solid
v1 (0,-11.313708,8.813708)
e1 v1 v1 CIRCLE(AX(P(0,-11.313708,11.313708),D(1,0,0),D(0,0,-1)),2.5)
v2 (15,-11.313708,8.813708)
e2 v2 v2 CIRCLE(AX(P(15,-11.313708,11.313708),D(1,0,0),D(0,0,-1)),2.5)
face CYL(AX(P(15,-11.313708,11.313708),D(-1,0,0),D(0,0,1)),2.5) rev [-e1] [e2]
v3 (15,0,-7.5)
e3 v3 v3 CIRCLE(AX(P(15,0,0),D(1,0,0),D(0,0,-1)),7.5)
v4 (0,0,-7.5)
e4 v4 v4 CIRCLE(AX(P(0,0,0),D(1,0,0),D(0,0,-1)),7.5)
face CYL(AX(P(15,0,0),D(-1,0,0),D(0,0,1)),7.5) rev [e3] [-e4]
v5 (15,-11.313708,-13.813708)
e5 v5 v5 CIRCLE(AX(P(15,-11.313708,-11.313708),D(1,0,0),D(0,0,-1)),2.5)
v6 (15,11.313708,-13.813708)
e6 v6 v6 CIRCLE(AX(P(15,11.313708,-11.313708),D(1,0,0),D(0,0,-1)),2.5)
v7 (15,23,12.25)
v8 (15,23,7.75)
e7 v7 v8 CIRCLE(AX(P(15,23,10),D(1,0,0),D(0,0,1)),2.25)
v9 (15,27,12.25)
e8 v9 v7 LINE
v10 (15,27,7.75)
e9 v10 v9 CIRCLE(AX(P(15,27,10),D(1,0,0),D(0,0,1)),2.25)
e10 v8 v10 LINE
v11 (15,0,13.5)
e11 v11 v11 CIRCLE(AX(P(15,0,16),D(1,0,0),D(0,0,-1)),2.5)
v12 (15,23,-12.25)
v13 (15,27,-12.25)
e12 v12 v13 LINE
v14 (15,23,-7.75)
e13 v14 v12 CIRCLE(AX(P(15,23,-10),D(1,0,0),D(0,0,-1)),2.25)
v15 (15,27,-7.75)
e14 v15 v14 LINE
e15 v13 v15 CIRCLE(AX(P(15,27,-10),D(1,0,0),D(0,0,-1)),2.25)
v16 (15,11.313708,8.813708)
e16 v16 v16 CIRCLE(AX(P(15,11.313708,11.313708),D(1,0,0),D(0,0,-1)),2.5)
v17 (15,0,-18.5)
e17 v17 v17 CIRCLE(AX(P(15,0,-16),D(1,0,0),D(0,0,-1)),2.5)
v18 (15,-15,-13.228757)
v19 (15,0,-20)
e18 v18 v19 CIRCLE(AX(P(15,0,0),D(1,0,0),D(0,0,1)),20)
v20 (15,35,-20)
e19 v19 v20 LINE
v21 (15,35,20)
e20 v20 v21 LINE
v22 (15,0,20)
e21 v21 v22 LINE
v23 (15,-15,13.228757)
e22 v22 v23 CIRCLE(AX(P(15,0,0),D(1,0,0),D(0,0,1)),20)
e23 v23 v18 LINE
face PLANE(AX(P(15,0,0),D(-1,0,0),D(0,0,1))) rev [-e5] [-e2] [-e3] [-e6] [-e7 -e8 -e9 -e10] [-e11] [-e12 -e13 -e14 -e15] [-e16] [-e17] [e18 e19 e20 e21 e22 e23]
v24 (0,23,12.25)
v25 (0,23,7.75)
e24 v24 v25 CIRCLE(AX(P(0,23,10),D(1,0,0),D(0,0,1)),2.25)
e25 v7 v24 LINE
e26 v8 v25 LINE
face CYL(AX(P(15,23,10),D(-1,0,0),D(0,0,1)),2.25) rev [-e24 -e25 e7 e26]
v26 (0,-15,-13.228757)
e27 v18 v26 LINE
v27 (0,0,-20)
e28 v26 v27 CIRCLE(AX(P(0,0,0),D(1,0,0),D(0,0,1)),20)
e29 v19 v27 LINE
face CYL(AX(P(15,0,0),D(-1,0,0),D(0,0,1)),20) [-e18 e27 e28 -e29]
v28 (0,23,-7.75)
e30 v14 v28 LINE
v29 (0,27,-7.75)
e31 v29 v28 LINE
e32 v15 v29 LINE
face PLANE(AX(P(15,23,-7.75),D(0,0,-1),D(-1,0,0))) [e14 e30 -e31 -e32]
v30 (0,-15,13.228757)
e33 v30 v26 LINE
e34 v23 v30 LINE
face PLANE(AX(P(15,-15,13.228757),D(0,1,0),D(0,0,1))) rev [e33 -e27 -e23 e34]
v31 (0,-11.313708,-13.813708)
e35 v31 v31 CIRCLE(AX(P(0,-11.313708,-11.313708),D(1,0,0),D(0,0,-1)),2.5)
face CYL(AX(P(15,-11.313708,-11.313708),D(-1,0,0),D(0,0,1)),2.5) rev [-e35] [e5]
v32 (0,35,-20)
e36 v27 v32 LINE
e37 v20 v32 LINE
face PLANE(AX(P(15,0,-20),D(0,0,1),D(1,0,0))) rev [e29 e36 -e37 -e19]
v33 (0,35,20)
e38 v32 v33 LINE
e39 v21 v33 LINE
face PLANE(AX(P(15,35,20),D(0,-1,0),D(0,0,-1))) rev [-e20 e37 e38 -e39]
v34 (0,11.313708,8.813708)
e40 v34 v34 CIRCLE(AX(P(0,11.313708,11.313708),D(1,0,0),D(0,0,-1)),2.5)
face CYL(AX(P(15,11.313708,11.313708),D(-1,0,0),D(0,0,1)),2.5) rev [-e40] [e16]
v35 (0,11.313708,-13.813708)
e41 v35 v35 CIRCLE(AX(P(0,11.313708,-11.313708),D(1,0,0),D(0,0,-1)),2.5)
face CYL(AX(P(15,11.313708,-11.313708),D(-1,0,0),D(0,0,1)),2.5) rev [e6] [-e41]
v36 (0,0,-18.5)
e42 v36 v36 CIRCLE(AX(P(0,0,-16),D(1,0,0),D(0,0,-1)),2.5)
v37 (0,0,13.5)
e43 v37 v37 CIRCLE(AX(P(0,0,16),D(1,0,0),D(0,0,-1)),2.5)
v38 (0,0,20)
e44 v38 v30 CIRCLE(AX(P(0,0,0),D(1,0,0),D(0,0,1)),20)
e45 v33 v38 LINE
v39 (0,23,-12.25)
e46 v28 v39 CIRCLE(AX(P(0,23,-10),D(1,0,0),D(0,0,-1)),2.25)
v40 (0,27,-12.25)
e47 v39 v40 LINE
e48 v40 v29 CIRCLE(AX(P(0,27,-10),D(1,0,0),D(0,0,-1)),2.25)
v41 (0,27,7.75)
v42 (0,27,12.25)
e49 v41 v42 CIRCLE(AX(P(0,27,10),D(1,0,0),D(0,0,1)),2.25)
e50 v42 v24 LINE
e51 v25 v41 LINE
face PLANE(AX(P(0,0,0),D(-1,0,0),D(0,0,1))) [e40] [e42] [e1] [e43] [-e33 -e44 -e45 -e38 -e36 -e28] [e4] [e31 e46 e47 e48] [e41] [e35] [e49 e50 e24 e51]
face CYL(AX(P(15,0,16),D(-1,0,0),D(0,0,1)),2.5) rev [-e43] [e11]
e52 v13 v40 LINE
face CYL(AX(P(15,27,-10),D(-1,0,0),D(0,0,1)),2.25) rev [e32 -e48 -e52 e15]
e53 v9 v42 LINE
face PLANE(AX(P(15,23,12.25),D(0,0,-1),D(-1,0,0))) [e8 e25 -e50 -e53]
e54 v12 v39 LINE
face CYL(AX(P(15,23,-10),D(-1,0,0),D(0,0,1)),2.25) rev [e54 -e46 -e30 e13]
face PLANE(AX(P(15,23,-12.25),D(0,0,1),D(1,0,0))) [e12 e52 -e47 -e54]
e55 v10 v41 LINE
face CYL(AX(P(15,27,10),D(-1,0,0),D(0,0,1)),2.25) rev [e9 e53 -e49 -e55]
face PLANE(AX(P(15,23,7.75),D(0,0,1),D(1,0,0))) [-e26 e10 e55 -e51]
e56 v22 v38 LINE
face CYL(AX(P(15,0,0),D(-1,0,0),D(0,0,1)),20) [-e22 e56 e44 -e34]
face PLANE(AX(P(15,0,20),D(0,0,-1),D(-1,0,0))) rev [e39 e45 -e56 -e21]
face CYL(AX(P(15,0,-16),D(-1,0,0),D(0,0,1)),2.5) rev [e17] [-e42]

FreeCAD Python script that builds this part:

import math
import FreeCAD as App
import Part
import Sketcher

V = App.Vector
Q = App.Units.Quantity

doc = App.newDocument("Part")
params = doc.addObject("Spreadsheet::Sheet", "Params")
for row, (alias, value) in enumerate([
    ("sketch1_diameter", "5 mm"),
    ("sketch1_diameter2", "15 mm"),
    ("sketch1_radius", "20 mm"),
    ("sketch1_width", "35 mm"),
    ("sketch1_width2", "4 mm"),
    ("pad1_length", "15 mm"),
], start=1):
    params.set(f"A{row}", alias)
    params.set(f"B{row}", "=" + value)
    params.setAlias(f"B{row}", alias)

body = doc.addObject("PartDesign::Body", "Body")

# Sketch on YZ plane
sketch1 = body.newObject("Sketcher::SketchObject", "Sketch")
sketch1.AttachmentSupport = (doc.getObject("YZ_Plane"), [""])
sketch1.MapMode = "FlatFace"
sketch1.addGeometry(Part.LineSegment(V(-15, 13.2, 0), V(-15, -13.2, 0)), False)
sketch1.addGeometry(Part.ArcOfCircle(Part.Circle(V(0, 0, 0), V(0, 0, 1), 20), math.radians(-139), math.radians(-90)), False)
sketch1.addGeometry(Part.LineSegment(V(0, -20, 0), V(35, -20, 0)), False)
sketch1.addGeometry(Part.LineSegment(V(35, -20, 0), V(35, 20, 0)), False)
sketch1.addGeometry(Part.LineSegment(V(35, 20, 0), V(0, 20, 0)), False)
sketch1.addGeometry(Part.ArcOfCircle(Part.Circle(V(0, 0, 0), V(0, 0, 1), 20), math.radians(90), math.radians(139)), False)
sketch1.addGeometry(Part.Circle(V(-11.3, 11.3, 0), V(0, 0, 1), 2.5), False)
sketch1.addGeometry(Part.Circle(V(0, 16, 0), V(0, 0, 1), 2.5), False)
sketch1.addGeometry(Part.Circle(V(-11.3, -11.3, 0), V(0, 0, 1), 2.5), False)
sketch1.addGeometry(Part.Circle(V(0, 0, 0), V(0, 0, 1), 7.5), False)
sketch1.addGeometry(Part.Circle(V(0, -16, 0), V(0, 0, 1), 2.5), False)
sketch1.addGeometry(Part.Circle(V(11.3, 11.3, 0), V(0, 0, 1), 2.5), False)
sketch1.addGeometry(Part.ArcOfCircle(Part.Circle(V(23, 10, 0), V(0, 0, 1), 2.2), math.radians(90), math.radians(270)), False)
sketch1.addGeometry(Part.LineSegment(V(23, 12.2, 0), V(27, 12.2, 0)), False)
sketch1.addGeometry(Part.ArcOfCircle(Part.Circle(V(27, 10, 0), V(0, 0, 1), 2.2), math.radians(-90), math.radians(90)), False)
sketch1.addGeometry(Part.LineSegment(V(27, 7.8, 0), V(23, 7.8, 0)), False)
sketch1.addGeometry(Part.Circle(V(11.3, -11.3, 0), V(0, 0, 1), 2.5), False)
sketch1.addGeometry(Part.LineSegment(V(27, -12.2, 0), V(23, -12.2, 0)), False)
sketch1.addGeometry(Part.ArcOfCircle(Part.Circle(V(23, -10, 0), V(0, 0, 1), 2.2), math.radians(90), math.radians(270)), False)
sketch1.addGeometry(Part.LineSegment(V(23, -7.8, 0), V(27, -7.8, 0)), False)
sketch1.addGeometry(Part.ArcOfCircle(Part.Circle(V(27, -10, 0), V(0, 0, 1), 2.2), math.radians(-90), math.radians(90)), False)
sketch1.addConstraint(Sketcher.Constraint("Coincident", 0, 2, 1, 1))
sketch1.addConstraint(Sketcher.Constraint("Tangent", 1, 2, 2, 1))
sketch1.addConstraint(Sketcher.Constraint("Coincident", 2, 2, 3, 1))
sketch1.addConstraint(Sketcher.Constraint("Coincident", 3, 2, 4, 1))
sketch1.addConstraint(Sketcher.Constraint("Tangent", 4, 2, 5, 1))
sketch1.addConstraint(Sketcher.Constraint("Coincident", 5, 2, 0, 1))
sketch1.addConstraint(Sketcher.Constraint("Tangent", 12, 1, 13, 1))
sketch1.addConstraint(Sketcher.Constraint("Tangent", 13, 2, 14, 2))
sketch1.addConstraint(Sketcher.Constraint("Tangent", 14, 1, 15, 1))
sketch1.addConstraint(Sketcher.Constraint("Tangent", 15, 2, 12, 2))
sketch1.addConstraint(Sketcher.Constraint("Tangent", 17, 2, 18, 2))
sketch1.addConstraint(Sketcher.Constraint("Tangent", 18, 1, 19, 1))
sketch1.addConstraint(Sketcher.Constraint("Tangent", 19, 2, 20, 2))
sketch1.addConstraint(Sketcher.Constraint("Tangent", 20, 1, 17, 1))
sketch1.addConstraint(Sketcher.Constraint("Vertical", 0))
sketch1.addConstraint(Sketcher.Constraint("Horizontal", 2))
sketch1.addConstraint(Sketcher.Constraint("Vertical", 3))
sketch1.addConstraint(Sketcher.Constraint("Horizontal", 4))
sketch1.addConstraint(Sketcher.Constraint("Horizontal", 13))
sketch1.addConstraint(Sketcher.Constraint("Horizontal", 15))
sketch1.addConstraint(Sketcher.Constraint("Horizontal", 17))
sketch1.addConstraint(Sketcher.Constraint("Horizontal", 19))
sketch1.addConstraint(Sketcher.Constraint("Coincident", 1, 3, -1, 1))
sketch1.addConstraint(Sketcher.Constraint("Coincident", 5, 3, -1, 1))
sketch1.addConstraint(Sketcher.Constraint("Coincident", 9, 3, -1, 1))
sketch1.addConstraint(Sketcher.Constraint("Equal", 1, 5))
sketch1.addConstraint(Sketcher.Constraint("Equal", 6, 7))
sketch1.addConstraint(Sketcher.Constraint("Equal", 7, 8))
sketch1.addConstraint(Sketcher.Constraint("Equal", 8, 10))
sketch1.addConstraint(Sketcher.Constraint("Equal", 10, 11))
sketch1.addConstraint(Sketcher.Constraint("Equal", 11, 16))
sketch1.addConstraint(Sketcher.Constraint("Equal", 14, 18))
sketch1.addConstraint(Sketcher.Constraint("Symmetric", 7, 3, 10, 3, -1, 1))
sketch1.addConstraint(Sketcher.Constraint("Symmetric", 8, 3, 11, 3, -1, 1))
sketch1.addConstraint(Sketcher.Constraint("Symmetric", 6, 3, 16, 3, -1, 1))
sketch1.addConstraint(Sketcher.Constraint("Symmetric", 6, 3, 11, 3, -2))
sketch1.addConstraint(Sketcher.Constraint("Symmetric", 12, 3, 18, 3, -1))
sketch1.addConstraint(Sketcher.Constraint("PointOnObject", 7, 3, -2))
sketch1.addConstraint(Sketcher.Constraint("Vertical", 14, 3, 20, 3))
sketch1.addConstraint(Sketcher.Constraint("Diameter", 6, Q("5 mm")))
sketch1.addConstraint(Sketcher.Constraint("Diameter", 9, Q("15 mm")))
sketch1.addConstraint(Sketcher.Constraint("Radius", 1, Q("20 mm")))
sketch1.addConstraint(Sketcher.Constraint("DistanceX", 2, 1, 2, 2, Q("35 mm")))
sketch1.addConstraint(Sketcher.Constraint("DistanceX", 13, 1, 13, 2, Q("4 mm")))
sketch1.addConstraint(Sketcher.Constraint("Radius", 12, Q("2.25 mm")))
sketch1.addConstraint(Sketcher.Constraint("DistanceY", -1, 1, 7, 3, Q("16 mm")))
sketch1.addConstraint(Sketcher.Constraint("DistanceX", -1, 1, 12, 3, Q("23 mm")))
sketch1.addConstraint(Sketcher.Constraint("DistanceY", -1, 1, 12, 3, Q("10 mm")))
sketch1.addConstraint(Sketcher.Constraint("DistanceX", 0, 2, -1, 1, Q("15 mm")))
sketch1.addConstraint(Sketcher.Constraint("DistanceX", 6, 3, -1, 1, Q("11.313708 mm")))
sketch1.addConstraint(Sketcher.Constraint("DistanceY", -1, 1, 6, 3, Q("11.313708 mm")))
sketch1.setExpression("Constraints[39]", "Params.sketch1_diameter")
sketch1.setExpression("Constraints[40]", "Params.sketch1_diameter2")
sketch1.setExpression("Constraints[41]", "Params.sketch1_radius")
sketch1.setExpression("Constraints[42]", "Params.sketch1_width")
sketch1.setExpression("Constraints[43]", "Params.sketch1_width2")
pad1 = body.newObject("PartDesign::Pad", "Pad")
pad1.Profile = sketch1
pad1.setExpression("Length", "Params.pad1_length")

doc.recompute()
